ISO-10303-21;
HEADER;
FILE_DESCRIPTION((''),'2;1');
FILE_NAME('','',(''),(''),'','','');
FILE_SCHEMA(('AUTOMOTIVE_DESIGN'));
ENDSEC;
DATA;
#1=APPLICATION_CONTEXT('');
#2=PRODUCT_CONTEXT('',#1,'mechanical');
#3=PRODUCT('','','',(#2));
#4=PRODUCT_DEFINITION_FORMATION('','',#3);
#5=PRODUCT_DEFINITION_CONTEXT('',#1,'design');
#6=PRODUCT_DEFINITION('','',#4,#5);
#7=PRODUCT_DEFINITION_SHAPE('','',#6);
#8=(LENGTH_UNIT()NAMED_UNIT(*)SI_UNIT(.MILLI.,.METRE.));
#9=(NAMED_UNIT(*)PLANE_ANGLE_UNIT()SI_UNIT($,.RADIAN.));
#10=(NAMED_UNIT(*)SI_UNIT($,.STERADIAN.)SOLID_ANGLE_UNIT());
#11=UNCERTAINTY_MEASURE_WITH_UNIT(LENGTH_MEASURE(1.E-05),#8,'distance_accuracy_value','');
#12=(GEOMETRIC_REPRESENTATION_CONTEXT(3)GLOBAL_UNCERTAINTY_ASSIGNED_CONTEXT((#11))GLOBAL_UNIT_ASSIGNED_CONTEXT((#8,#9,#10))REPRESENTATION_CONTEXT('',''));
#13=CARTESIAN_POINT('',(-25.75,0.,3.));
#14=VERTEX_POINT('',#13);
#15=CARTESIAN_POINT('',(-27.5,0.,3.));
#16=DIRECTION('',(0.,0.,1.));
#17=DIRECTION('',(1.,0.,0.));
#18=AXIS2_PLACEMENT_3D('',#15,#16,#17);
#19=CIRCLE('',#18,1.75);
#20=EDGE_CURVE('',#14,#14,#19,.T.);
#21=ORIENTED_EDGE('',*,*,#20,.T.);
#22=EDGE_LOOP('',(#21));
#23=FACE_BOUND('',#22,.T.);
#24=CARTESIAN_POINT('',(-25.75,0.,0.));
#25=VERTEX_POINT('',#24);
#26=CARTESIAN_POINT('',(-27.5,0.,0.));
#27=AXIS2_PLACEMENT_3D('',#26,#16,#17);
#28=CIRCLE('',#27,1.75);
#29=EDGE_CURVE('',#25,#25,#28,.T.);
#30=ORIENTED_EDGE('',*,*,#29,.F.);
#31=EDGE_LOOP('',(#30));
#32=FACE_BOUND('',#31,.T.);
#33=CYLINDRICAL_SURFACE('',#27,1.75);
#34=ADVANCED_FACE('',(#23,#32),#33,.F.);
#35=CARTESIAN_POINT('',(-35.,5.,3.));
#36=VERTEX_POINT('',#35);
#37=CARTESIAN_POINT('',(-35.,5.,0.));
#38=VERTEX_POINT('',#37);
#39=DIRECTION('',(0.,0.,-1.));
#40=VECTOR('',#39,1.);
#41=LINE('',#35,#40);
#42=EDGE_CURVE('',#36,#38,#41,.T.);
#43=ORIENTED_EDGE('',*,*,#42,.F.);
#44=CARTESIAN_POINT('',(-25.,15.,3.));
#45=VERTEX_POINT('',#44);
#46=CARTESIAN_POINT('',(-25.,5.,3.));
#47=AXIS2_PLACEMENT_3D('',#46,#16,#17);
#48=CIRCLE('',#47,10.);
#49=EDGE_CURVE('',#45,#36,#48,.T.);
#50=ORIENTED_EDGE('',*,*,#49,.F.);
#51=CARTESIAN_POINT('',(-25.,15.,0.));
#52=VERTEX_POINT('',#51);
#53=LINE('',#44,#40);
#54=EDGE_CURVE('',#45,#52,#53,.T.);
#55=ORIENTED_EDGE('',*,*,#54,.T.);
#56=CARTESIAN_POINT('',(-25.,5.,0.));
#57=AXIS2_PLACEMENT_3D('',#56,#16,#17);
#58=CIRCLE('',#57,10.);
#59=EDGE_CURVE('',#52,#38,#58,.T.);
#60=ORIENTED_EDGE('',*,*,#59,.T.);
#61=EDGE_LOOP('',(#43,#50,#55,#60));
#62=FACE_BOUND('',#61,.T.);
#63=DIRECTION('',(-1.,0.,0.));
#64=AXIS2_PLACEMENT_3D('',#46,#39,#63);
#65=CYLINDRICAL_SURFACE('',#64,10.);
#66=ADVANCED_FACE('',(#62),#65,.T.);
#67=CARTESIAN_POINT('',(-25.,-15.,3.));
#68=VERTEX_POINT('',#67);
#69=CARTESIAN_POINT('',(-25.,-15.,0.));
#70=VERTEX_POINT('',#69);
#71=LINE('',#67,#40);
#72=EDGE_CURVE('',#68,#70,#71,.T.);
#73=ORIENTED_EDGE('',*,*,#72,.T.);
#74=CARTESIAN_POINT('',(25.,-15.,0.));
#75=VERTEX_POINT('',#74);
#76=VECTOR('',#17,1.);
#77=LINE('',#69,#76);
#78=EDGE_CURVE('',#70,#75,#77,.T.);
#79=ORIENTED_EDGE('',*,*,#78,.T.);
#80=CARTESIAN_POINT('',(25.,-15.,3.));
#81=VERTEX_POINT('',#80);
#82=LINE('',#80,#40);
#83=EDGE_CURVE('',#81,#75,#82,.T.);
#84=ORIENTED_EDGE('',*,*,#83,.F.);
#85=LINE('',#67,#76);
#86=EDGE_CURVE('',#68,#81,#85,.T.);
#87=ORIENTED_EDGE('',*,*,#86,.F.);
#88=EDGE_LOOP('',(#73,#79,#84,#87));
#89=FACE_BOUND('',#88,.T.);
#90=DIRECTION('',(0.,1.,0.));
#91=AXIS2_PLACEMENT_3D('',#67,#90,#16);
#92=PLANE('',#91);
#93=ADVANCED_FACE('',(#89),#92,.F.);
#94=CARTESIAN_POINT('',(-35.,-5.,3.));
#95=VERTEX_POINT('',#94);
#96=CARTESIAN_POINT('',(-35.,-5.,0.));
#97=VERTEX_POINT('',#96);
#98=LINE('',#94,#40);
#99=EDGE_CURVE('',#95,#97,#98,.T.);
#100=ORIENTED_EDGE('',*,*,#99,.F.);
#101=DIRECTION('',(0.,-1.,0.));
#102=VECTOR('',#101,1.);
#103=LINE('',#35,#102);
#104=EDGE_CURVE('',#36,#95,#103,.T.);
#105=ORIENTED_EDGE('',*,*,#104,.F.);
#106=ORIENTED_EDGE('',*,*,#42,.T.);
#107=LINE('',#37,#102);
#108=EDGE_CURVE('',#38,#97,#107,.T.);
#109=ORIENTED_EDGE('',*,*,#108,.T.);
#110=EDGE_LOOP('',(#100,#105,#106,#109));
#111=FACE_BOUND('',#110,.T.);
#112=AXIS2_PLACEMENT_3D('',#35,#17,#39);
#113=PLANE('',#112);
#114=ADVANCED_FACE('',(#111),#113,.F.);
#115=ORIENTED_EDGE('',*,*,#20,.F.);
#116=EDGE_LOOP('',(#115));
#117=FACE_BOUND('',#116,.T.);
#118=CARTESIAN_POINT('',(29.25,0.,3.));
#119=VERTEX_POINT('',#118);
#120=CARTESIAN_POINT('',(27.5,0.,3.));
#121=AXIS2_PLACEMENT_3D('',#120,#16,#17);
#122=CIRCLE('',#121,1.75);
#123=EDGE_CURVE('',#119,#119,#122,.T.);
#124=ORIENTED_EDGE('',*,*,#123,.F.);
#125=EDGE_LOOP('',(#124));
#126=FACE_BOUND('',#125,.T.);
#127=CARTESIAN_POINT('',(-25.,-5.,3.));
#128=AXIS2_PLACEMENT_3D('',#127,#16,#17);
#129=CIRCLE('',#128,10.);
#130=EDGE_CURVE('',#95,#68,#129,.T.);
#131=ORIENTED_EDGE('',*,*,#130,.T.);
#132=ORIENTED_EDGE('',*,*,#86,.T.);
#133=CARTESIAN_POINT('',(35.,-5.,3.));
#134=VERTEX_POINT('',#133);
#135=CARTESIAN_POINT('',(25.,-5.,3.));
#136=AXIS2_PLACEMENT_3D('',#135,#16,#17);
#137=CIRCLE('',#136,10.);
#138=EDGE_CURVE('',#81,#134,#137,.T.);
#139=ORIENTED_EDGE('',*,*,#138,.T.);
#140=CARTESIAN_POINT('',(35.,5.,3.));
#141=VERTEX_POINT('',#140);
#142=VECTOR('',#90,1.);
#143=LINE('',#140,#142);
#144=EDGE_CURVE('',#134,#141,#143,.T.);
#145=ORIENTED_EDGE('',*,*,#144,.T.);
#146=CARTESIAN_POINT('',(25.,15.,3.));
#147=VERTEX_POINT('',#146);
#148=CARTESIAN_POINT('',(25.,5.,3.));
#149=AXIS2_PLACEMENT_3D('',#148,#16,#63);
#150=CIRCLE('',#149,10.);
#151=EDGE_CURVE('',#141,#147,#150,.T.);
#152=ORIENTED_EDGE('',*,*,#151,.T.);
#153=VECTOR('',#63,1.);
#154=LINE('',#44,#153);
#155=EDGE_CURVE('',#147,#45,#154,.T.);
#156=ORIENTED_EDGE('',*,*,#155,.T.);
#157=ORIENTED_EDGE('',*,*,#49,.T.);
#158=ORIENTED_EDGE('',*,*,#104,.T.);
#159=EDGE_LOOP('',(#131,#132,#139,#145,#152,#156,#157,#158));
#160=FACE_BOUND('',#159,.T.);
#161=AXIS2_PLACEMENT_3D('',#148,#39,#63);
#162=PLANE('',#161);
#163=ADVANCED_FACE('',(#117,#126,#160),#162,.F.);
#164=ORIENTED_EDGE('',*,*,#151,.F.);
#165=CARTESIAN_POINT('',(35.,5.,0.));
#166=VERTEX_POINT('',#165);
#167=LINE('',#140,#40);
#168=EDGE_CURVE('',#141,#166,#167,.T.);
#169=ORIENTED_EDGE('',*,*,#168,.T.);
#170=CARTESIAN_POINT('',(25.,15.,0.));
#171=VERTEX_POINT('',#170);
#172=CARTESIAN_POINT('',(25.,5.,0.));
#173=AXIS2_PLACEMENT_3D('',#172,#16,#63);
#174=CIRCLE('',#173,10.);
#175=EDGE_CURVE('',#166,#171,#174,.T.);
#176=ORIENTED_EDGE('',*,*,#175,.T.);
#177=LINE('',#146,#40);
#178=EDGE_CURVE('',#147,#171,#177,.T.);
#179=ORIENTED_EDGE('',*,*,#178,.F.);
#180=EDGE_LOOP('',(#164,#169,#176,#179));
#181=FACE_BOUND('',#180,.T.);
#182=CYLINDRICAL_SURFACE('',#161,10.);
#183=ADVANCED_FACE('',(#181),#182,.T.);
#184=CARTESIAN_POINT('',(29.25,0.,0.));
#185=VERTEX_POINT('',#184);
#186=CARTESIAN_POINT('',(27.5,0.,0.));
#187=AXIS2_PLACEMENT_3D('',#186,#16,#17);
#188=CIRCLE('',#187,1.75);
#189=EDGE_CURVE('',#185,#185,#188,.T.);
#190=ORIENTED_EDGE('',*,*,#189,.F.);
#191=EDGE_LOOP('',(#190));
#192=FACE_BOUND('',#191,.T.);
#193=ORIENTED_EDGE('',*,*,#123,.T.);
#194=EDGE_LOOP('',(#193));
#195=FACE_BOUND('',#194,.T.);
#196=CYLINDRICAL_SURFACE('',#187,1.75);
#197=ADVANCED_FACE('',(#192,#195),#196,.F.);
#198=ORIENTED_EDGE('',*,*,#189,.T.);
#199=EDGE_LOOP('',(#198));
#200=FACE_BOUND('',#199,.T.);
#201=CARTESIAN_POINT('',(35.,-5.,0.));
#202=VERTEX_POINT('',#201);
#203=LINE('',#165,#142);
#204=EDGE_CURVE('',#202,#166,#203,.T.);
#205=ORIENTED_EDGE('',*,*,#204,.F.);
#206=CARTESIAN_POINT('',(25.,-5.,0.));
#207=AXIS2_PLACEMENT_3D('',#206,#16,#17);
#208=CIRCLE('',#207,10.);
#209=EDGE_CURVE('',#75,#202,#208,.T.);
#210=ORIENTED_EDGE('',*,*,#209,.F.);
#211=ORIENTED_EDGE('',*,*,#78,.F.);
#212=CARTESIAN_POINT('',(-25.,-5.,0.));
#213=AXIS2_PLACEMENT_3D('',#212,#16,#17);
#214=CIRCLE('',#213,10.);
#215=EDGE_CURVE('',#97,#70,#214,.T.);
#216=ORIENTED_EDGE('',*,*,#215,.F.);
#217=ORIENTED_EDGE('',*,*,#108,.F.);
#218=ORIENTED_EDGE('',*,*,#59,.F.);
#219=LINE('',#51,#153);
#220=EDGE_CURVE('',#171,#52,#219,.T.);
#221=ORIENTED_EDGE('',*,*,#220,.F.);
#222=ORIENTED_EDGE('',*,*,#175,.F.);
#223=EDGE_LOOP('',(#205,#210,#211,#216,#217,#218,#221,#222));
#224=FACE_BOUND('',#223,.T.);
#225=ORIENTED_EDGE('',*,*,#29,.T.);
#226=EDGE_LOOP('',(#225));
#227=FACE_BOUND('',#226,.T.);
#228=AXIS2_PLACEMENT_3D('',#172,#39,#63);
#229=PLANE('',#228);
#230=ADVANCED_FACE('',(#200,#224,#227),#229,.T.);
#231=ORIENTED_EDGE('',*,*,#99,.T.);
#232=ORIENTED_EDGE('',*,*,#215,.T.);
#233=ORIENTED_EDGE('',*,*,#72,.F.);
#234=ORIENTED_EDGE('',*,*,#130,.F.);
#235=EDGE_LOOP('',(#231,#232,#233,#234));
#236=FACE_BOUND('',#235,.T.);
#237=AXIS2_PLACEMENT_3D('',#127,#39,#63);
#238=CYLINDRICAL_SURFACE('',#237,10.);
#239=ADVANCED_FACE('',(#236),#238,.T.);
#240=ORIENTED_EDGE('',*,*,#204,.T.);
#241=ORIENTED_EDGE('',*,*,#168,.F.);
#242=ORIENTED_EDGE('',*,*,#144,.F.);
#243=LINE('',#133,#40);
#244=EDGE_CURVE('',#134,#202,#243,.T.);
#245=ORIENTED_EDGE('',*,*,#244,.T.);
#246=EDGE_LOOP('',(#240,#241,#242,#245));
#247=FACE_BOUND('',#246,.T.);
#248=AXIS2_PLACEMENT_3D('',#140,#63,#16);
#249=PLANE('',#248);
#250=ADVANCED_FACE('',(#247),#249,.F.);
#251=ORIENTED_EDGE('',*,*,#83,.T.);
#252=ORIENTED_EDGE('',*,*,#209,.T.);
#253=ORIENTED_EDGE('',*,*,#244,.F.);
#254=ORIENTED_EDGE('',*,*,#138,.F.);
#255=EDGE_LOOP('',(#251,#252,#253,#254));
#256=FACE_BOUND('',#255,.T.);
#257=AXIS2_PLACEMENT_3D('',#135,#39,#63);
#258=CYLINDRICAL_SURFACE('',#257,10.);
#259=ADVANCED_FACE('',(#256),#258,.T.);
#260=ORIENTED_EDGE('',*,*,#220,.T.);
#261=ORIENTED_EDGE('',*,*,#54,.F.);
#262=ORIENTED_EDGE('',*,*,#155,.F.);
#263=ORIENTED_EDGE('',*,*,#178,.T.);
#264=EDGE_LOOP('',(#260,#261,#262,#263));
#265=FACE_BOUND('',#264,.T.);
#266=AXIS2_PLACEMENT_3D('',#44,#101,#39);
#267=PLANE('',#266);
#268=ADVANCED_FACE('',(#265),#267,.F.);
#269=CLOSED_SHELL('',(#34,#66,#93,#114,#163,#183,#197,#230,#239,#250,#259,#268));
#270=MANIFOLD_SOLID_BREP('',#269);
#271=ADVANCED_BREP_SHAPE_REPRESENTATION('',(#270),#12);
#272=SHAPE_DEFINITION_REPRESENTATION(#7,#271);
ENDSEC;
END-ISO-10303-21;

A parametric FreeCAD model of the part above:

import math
import FreeCAD as App
import Part
import Sketcher

V = App.Vector

doc = App.newDocument("Part")
body = doc.addObject("PartDesign::Body", "Body")

# Sketch on XY plane
sketch1 = doc.addObject("Sketcher::SketchObject", "Sketch")
body.addObject(sketch1)
sketch1.AttachmentSupport = (doc.XY_Plane, [""])
sketch1.MapMode = "FlatFace"
sketch1.addGeometry([
    Part.LineSegment(V(25, 15, 0), V(-25, 15, 0)),  # 0
    Part.ArcOfCircle(Part.Circle(V(-25, 5, 0), V(0, 0, 1), 10), math.radians(90), math.radians(180)),  # 1
    Part.LineSegment(V(-35, 5, 0), V(-35, -5, 0)),  # 2
    Part.ArcOfCircle(Part.Circle(V(-25, -5, 0), V(0, 0, 1), 10), math.radians(180), math.radians(270)),  # 3
    Part.LineSegment(V(-25, -15, 0), V(25, -15, 0)),  # 4
    Part.ArcOfCircle(Part.Circle(V(25, -5, 0), V(0, 0, 1), 10), math.radians(-90), math.radians(0)),  # 5
    Part.LineSegment(V(35, -5, 0), V(35, 5, 0)),  # 6
    Part.ArcOfCircle(Part.Circle(V(25, 5, 0), V(0, 0, 1), 10), math.radians(0), math.radians(90)),  # 7
], False)
sketch1.addConstraint([
    Sketcher.Constraint("Tangent", 0, 2, 1, 1),
    Sketcher.Constraint("Tangent", 1, 2, 2, 1),
    Sketcher.Constraint("Tangent", 2, 2, 3, 1),
    Sketcher.Constraint("Tangent", 3, 2, 4, 1),
    Sketcher.Constraint("Tangent", 4, 2, 5, 1),
    Sketcher.Constraint("Tangent", 5, 2, 6, 1),
    Sketcher.Constraint("Tangent", 6, 2, 7, 1),
    Sketcher.Constraint("Tangent", 7, 2, 0, 1),
    Sketcher.Constraint("Horizontal", 0),
    Sketcher.Constraint("Vertical", 2),
    Sketcher.Constraint("Horizontal", 4),
    Sketcher.Constraint("Vertical", 6),
    Sketcher.Constraint("Equal", 1, 3),
    Sketcher.Constraint("Equal", 3, 5),
    Sketcher.Constraint("Equal", 5, 7),
    Sketcher.Constraint("Symmetric", 1, 3, 5, 3, -1, 1),
    Sketcher.Constraint("Radius", 1, 10.0),
    Sketcher.Constraint("DistanceX", 0, 2, 0, 1, 50.0),
    Sketcher.Constraint("DistanceY", 2, 2, 2, 1, 10.0),
])
pad1 = doc.addObject("PartDesign::Pad", "Pad")
body.addObject(pad1)
pad1.Profile = sketch1
pad1.Length = 3

# Sketch on XY plane
sketch2 = doc.addObject("Sketcher::SketchObject", "Sketch001")
body.addObject(sketch2)
sketch2.AttachmentSupport = (doc.XY_Plane, [""])
sketch2.MapMode = "FlatFace"
sketch2.AttachmentOffset = App.Placement(V(0, 0, 3), App.Rotation())
sketch2.addGeometry([
    Part.Circle(V(-27.5, 0, 0), V(0, 0, 1), 1.75),
    Part.Circle(V(27.5, 0, 0), V(0, 0, 1), 1.75),
], False)
sketch2.addConstraint([
    Sketcher.Constraint("Equal", 0, 1),
    Sketcher.Constraint("Symmetric", 0, 3, 1, 3, -1, 1),
    Sketcher.Constraint("PointOnObject", 0, 3, -1),
    Sketcher.Constraint("Diameter", 0, 3.5),
    Sketcher.Constraint("DistanceX", 0, 3, 1, 3, 55.0),
])
pocket1 = doc.addObject("PartDesign::Pocket", "Pocket")
body.addObject(pocket1)
pocket1.Profile = sketch2
pocket1.Length = 3

doc.recompute()
